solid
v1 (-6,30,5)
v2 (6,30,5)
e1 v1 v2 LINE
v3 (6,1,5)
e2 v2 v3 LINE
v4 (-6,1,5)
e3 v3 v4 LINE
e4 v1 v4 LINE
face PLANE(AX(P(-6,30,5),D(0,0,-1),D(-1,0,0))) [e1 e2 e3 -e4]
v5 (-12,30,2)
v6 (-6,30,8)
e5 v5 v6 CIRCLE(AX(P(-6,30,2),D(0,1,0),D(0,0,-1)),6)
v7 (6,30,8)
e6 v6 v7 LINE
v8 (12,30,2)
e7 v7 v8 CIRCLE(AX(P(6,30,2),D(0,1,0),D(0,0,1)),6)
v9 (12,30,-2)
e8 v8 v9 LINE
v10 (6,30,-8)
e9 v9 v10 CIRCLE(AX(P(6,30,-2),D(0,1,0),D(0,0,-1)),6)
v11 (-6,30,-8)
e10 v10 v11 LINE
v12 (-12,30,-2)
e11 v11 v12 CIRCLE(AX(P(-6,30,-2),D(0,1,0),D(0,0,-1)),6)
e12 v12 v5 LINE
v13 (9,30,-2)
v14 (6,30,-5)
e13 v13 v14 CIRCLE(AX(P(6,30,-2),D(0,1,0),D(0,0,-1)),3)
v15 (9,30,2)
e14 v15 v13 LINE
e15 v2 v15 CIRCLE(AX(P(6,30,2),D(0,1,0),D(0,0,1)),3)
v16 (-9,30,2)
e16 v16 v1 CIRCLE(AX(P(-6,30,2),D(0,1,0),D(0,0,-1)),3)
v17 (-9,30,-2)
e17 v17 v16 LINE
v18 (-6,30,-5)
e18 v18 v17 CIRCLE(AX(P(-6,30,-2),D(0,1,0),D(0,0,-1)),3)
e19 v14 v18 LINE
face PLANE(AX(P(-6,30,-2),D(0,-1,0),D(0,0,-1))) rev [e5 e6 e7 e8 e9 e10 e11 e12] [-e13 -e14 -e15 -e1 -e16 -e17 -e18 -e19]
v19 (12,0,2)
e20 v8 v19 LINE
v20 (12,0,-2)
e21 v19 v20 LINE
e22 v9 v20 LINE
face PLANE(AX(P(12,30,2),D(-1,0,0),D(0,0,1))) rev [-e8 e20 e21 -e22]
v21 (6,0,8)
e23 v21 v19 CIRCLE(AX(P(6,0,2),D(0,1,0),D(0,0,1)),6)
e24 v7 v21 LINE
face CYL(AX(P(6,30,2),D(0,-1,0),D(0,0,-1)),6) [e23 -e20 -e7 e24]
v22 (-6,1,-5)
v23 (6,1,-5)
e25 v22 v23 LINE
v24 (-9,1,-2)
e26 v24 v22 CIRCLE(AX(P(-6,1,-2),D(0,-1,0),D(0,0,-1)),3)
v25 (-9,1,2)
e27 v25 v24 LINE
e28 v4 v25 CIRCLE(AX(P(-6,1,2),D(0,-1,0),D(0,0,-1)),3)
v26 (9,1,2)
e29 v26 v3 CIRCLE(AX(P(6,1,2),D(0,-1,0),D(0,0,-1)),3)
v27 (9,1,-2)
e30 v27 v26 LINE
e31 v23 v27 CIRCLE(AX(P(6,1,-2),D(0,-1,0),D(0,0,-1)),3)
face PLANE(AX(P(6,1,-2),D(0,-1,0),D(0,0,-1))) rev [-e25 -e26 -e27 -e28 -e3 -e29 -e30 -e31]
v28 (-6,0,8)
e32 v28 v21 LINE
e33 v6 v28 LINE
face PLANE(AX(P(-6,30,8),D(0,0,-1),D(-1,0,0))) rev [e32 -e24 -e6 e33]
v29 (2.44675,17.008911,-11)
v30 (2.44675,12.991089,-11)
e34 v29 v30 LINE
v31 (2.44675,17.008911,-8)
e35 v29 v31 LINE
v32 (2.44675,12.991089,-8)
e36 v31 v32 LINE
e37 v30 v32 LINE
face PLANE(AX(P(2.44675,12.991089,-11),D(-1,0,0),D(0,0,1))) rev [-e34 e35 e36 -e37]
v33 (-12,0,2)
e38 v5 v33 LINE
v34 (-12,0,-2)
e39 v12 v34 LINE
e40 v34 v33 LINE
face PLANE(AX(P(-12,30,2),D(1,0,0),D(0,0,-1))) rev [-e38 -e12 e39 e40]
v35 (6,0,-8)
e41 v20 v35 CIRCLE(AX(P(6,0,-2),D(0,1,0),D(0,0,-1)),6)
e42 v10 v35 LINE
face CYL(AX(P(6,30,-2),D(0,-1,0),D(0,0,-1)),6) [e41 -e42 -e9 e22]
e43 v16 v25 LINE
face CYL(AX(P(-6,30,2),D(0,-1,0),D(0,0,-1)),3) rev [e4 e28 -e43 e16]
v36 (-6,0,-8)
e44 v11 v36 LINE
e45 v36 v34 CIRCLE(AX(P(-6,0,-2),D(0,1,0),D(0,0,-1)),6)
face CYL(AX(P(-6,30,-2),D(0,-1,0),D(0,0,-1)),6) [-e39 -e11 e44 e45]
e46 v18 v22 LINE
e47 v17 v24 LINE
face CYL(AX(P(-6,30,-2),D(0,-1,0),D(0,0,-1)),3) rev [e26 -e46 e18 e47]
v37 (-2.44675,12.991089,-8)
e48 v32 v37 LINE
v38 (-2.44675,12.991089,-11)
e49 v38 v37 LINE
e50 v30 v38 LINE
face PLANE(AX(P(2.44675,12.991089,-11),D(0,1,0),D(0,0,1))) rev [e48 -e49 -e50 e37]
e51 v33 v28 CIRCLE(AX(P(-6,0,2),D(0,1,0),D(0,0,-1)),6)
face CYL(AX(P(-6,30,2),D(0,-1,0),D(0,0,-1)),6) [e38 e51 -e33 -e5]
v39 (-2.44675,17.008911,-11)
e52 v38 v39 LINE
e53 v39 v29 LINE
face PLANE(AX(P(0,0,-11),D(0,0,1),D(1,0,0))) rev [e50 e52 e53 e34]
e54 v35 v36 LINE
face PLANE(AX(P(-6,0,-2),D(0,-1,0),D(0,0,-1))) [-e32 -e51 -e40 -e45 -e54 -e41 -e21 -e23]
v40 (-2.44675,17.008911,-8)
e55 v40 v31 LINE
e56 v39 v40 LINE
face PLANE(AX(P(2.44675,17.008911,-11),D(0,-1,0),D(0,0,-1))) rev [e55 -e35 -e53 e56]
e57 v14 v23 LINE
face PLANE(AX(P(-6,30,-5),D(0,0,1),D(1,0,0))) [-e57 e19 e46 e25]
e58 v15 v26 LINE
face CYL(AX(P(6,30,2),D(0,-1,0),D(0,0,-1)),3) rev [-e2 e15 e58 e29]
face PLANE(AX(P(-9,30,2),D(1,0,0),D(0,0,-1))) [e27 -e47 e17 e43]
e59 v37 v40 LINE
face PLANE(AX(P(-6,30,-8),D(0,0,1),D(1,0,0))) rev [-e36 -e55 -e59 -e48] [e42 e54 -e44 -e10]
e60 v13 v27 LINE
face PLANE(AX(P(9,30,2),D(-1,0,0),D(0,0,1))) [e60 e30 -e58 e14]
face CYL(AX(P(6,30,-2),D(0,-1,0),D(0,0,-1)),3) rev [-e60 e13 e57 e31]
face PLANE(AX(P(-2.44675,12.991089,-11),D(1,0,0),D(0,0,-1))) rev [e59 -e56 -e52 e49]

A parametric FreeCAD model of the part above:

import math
import FreeCAD as App
import Part
import Sketcher
from FreeCAD import Vector
Q = App.Units.Quantity


def add_polygon(sketch, points):
    """Adds a closed chain of lines whose ends are joined by coincident constraints."""
    first, n = sketch.GeometryCount, len(points)
    for a, b in zip(points, points[1:] + points[:1]):
        sketch.addGeometry(Part.LineSegment(App.Vector(*a, 0), App.Vector(*b, 0)), False)
    for i in range(n):
        sketch.addConstraint(Sketcher.Constraint("Coincident", first + i, 2, first + (i + 1) % n, 1))

doc = App.newDocument("Part")
body = doc.addObject("PartDesign::Body", "Body")

# Sketch on XZ plane
sketch1 = doc.addObject("Sketcher::SketchObject", "Sketch")
body.addObject(sketch1)
sketch1.AttachmentSupport = (doc.XZ_Plane, [""])
sketch1.MapMode = "FlatFace"
sketch1.addGeometry(Part.LineSegment(Vector(6, -8, 0), Vector(-6, -8, 0)), False)
sketch1.addGeometry(Part.ArcOfCircle(Part.Circle(Vector(-6, -2, 0), Vector(0, 0, 1), 6), math.radians(180), math.radians(270)), False)
sketch1.addGeometry(Part.LineSegment(Vector(-12, -2, 0), Vector(-12, 2, 0)), False)
sketch1.addGeometry(Part.ArcOfCircle(Part.Circle(Vector(-6, 2, 0), Vector(0, 0, 1), 6), math.radians(90), math.radians(180)), False)
sketch1.addGeometry(Part.LineSegment(Vector(-6, 8, 0), Vector(6, 8, 0)), False)
sketch1.addGeometry(Part.ArcOfCircle(Part.Circle(Vector(6, 2, 0), Vector(0, 0, 1), 6), math.radians(0), math.radians(90)), False)
sketch1.addGeometry(Part.LineSegment(Vector(12, 2, 0), Vector(12, -2, 0)), False)
sketch1.addGeometry(Part.ArcOfCircle(Part.Circle(Vector(6, -2, 0), Vector(0, 0, 1), 6), math.radians(-90), math.radians(0)), False)
sketch1.addGeometry(Part.ArcOfCircle(Part.Circle(Vector(-6, 2, 0), Vector(0, 0, 1), 3), math.radians(90), math.radians(180)), False)
sketch1.addGeometry(Part.LineSegment(Vector(-9, 2, 0), Vector(-9, -2, 0)), False)
sketch1.addGeometry(Part.ArcOfCircle(Part.Circle(Vector(-6, -2, 0), Vector(0, 0, 1), 3), math.radians(180), math.radians(270)), False)
sketch1.addGeometry(Part.LineSegment(Vector(-6, -5, 0), Vector(6, -5, 0)), False)
sketch1.addGeometry(Part.ArcOfCircle(Part.Circle(Vector(6, -2, 0), Vector(0, 0, 1), 3), math.radians(-90), math.radians(0)), False)
sketch1.addGeometry(Part.LineSegment(Vector(9, -2, 0), Vector(9, 2, 0)), False)
sketch1.addGeometry(Part.ArcOfCircle(Part.Circle(Vector(6, 2, 0), Vector(0, 0, 1), 3), math.radians(0), math.radians(90)), False)
sketch1.addGeometry(Part.LineSegment(Vector(6, 5, 0), Vector(-6, 5, 0)), False)
sketch1.addConstraint(Sketcher.Constraint("Tangent", 0, 2, 1, 2))
sketch1.addConstraint(Sketcher.Constraint("Tangent", 1, 1, 2, 1))
sketch1.addConstraint(Sketcher.Constraint("Tangent", 2, 2, 3, 2))
sketch1.addConstraint(Sketcher.Constraint("Tangent", 3, 1, 4, 1))
sketch1.addConstraint(Sketcher.Constraint("Tangent", 4, 2, 5, 2))
sketch1.addConstraint(Sketcher.Constraint("Tangent", 5, 1, 6, 1))
sketch1.addConstraint(Sketcher.Constraint("Tangent", 6, 2, 7, 2))
sketch1.addConstraint(Sketcher.Constraint("Tangent", 7, 1, 0, 1))
sketch1.addConstraint(Sketcher.Constraint("Tangent", 8, 2, 9, 1))
sketch1.addConstraint(Sketcher.Constraint("Tangent", 9, 2, 10, 1))
sketch1.addConstraint(Sketcher.Constraint("Tangent", 10, 2, 11, 1))
sketch1.addConstraint(Sketcher.Constraint("Tangent", 11, 2, 12, 1))
sketch1.addConstraint(Sketcher.Constraint("Tangent", 12, 2, 13, 1))
sketch1.addConstraint(Sketcher.Constraint("Tangent", 13, 2, 14, 1))
sketch1.addConstraint(Sketcher.Constraint("Tangent", 14, 2, 15, 1))
sketch1.addConstraint(Sketcher.Constraint("Tangent", 15, 2, 8, 1))
sketch1.addConstraint(Sketcher.Constraint("Horizontal", 0))
sketch1.addConstraint(Sketcher.Constraint("Vertical", 2))
sketch1.addConstraint(Sketcher.Constraint("Horizontal", 4))
sketch1.addConstraint(Sketcher.Constraint("Vertical", 6))
sketch1.addConstraint(Sketcher.Constraint("Vertical", 9))
sketch1.addConstraint(Sketcher.Constraint("Horizontal", 11))
sketch1.addConstraint(Sketcher.Constraint("Vertical", 13))
sketch1.addConstraint(Sketcher.Constraint("Horizontal", 15))
sketch1.addConstraint(Sketcher.Constraint("Coincident", 8, 3, 3, 3))
sketch1.addConstraint(Sketcher.Constraint("Coincident", 10, 3, 1, 3))
sketch1.addConstraint(Sketcher.Constraint("Coincident", 12, 3, 7, 3))
sketch1.addConstraint(Sketcher.Constraint("Equal", 1, 3))
sketch1.addConstraint(Sketcher.Constraint("Equal", 3, 5))
sketch1.addConstraint(Sketcher.Constraint("Equal", 5, 7))
sketch1.addConstraint(Sketcher.Constraint("Equal", 12, 14))
sketch1.addConstraint(Sketcher.Constraint("Symmetric", 1, 3, 5, 3, -1, 1))
sketch1.addConstraint(Sketcher.Constraint("Radius", 1, Q("6 mm")))
sketch1.addConstraint(Sketcher.Constraint("Radius", 8, Q("3 mm")))
sketch1.addConstraint(Sketcher.Constraint("DistanceX", 0, 2, 0, 1, Q("12 mm")))
sketch1.addConstraint(Sketcher.Constraint("DistanceY", 2, 1, 2, 2, Q("4 mm")))
pad1 = doc.addObject("PartDesign::Pad", "Pad")
body.addObject(pad1)
pad1.Profile = sketch1
pad1.Length = 30
pad1.Reversed = True

# Sketch on XY plane
sketch2 = doc.addObject("Sketcher::SketchObject", "Sketch001")
body.addObject(sketch2)
sketch2.AttachmentSupport = (doc.XY_Plane, [""])
sketch2.MapMode = "FlatFace"
sketch2.AttachmentOffset = App.Placement(Vector(0, 0, -8), App.Rotation())
add_polygon(sketch2, [(2.4, 17), (2.4, 13), (-2.4, 13), (-2.4, 17)])  # lines 0-3
sketch2.addConstraint(Sketcher.Constraint("Vertical", 0))
sketch2.addConstraint(Sketcher.Constraint("Horizontal", 1))
sketch2.addConstraint(Sketcher.Constraint("Vertical", 2))
sketch2.addConstraint(Sketcher.Constraint("Horizontal", 3))
sketch2.addConstraint(Sketcher.Constraint("DistanceX", 1, 2, 1, 1, Q("4.893501 mm")))
sketch2.addConstraint(Sketcher.Constraint("DistanceY", 0, 2, 0, 1, Q("4.017822 mm")))
sketch2.addConstraint(Sketcher.Constraint("DistanceX", -1, 1, 0, 2, Q("2.44675 mm")))
sketch2.addConstraint(Sketcher.Constraint("DistanceY", -1, 1, 0, 2, Q("12.991089 mm")))
pad2 = doc.addObject("PartDesign::Pad", "Pad001")
body.addObject(pad2)
pad2.Profile = sketch2
pad2.Length = 3
pad2.Reversed = True

# Sketch on XZ plane
sketch3 = doc.addObject("Sketcher::SketchObject", "Sketch002")
body.addObject(sketch3)
sketch3.AttachmentSupport = (doc.XZ_Plane, [""])
sketch3.MapMode = "FlatFace"
sketch3.addGeometry(Part.LineSegment(Vector(-6, -5, 0), Vector(6, -5, 0)), False)
sketch3.addGeometry(Part.ArcOfCircle(Part.Circle(Vector(6, -2, 0), Vector(0, 0, 1), 3), math.radians(-90), math.radians(0)), False)
sketch3.addGeometry(Part.LineSegment(Vector(9, -2, 0), Vector(9, 2, 0)), False)
sketch3.addGeometry(Part.ArcOfCircle(Part.Circle(Vector(6, 2, 0), Vector(0, 0, 1), 3), math.radians(0), math.radians(90)), False)
sketch3.addGeometry(Part.LineSegment(Vector(6, 5, 0), Vector(-6, 5, 0)), False)
sketch3.addGeometry(Part.ArcOfCircle(Part.Circle(Vector(-6, 2, 0), Vector(0, 0, 1), 3), math.radians(90), math.radians(180)), False)
sketch3.addGeometry(Part.LineSegment(Vector(-9, 2, 0), Vector(-9, -2, 0)), False)
sketch3.addGeometry(Part.ArcOfCircle(Part.Circle(Vector(-6, -2, 0), Vector(0, 0, 1), 3), math.radians(180), math.radians(270)), False)
sketch3.addConstraint(Sketcher.Constraint("Tangent", 0, 2, 1, 1))
sketch3.addConstraint(Sketcher.Constraint("Tangent", 1, 2, 2, 1))
sketch3.addConstraint(Sketcher.Constraint("Tangent", 2, 2, 3, 1))
sketch3.addConstraint(Sketcher.Constraint("Tangent", 3, 2, 4, 1))
sketch3.addConstraint(Sketcher.Constraint("Tangent", 4, 2, 5, 1))
sketch3.addConstraint(Sketcher.Constraint("Tangent", 5, 2, 6, 1))
sketch3.addConstraint(Sketcher.Constraint("Tangent", 6, 2, 7, 1))
sketch3.addConstraint(Sketcher.Constraint("Tangent", 7, 2, 0, 1))
sketch3.addConstraint(Sketcher.Constraint("Horizontal", 0))
sketch3.addConstraint(Sketcher.Constraint("Vertical", 2))
sketch3.addConstraint(Sketcher.Constraint("Horizontal", 4))
sketch3.addConstraint(Sketcher.Constraint("Vertical", 6))
sketch3.addConstraint(Sketcher.Constraint("Equal", 1, 3))
sketch3.addConstraint(Sketcher.Constraint("Equal", 3, 5))
sketch3.addConstraint(Sketcher.Constraint("Equal", 5, 7))
sketch3.addConstraint(Sketcher.Constraint("Symmetric", 1, 3, 5, 3, -1, 1))
sketch3.addConstraint(Sketcher.Constraint("Radius", 1, Q("3 mm")))
sketch3.addConstraint(Sketcher.Constraint("DistanceX", 0, 1, 0, 2, Q("12 mm")))
sketch3.addConstraint(Sketcher.Constraint("DistanceY", 2, 1, 2, 2, Q("4 mm")))
pad3 = doc.addObject("PartDesign::Pad", "Pad002")
body.addObject(pad3)
pad3.Profile = sketch3
pad3.Length = 1
pad3.Reversed = True

doc.recompute()
